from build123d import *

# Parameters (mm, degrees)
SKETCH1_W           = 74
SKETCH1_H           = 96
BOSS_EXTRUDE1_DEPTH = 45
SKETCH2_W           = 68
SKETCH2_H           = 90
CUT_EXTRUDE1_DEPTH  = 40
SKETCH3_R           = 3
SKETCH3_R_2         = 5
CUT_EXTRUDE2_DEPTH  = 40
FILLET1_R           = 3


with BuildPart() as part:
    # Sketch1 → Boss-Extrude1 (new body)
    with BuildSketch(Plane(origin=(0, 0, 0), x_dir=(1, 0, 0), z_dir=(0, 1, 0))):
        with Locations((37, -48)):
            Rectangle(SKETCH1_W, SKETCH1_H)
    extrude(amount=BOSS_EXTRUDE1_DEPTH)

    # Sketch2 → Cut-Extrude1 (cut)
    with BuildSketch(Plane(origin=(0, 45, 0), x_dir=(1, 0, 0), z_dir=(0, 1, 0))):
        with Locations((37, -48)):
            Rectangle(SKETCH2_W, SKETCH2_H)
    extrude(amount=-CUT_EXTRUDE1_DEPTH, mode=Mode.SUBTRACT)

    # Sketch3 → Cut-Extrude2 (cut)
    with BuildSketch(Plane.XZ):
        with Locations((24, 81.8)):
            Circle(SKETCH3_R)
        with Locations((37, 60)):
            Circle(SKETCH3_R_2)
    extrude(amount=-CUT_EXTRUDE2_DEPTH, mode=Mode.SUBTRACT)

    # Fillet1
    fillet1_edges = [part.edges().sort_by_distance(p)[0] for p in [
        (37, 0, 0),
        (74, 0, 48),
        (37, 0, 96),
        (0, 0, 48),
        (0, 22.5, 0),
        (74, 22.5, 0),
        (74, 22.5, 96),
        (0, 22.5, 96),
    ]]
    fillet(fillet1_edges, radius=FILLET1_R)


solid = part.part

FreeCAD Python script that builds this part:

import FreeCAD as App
import Part
import Sketcher
Q = App.Units.Quantity


def edges_at(feature, points):
    """Names of the edges that pass closest to the given points."""
    edges = feature.Shape.Edges
    near = lambda p: min(range(len(edges)), key=lambda i: edges[i].distToShape(Part.Vertex(*p))[0])
    return sorted({f"Edge{near(p) + 1}" for p in points})


def add_polygon(sketch, points):
    """Adds a closed chain of lines whose ends are joined by coincident constraints."""
    first, n = sketch.GeometryCount, len(points)
    for a, b in zip(points, points[1:] + points[:1]):
        sketch.addGeometry(Part.LineSegment(App.Vector(*a, 0), App.Vector(*b, 0)), False)
    for i in range(n):
        sketch.addConstraint(Sketcher.Constraint("Coincident", first + i, 2, first + (i + 1) % n, 1))

doc = App.newDocument("Part")
body = doc.addObject("PartDesign::Body", "Body")

# Sketch on XZ plane
sketch1 = body.newObject("Sketcher::SketchObject", "Sketch")
sketch1.AttachmentSupport = (doc.getObject("XZ_Plane"), [""])
sketch1.MapMode = "FlatFace"
add_polygon(sketch1, [(0, 0), (0, 96), (74, 96), (74, 0)])  # lines 0-3
sketch1.addConstraint([
    Sketcher.Constraint("Vertical", 0),
    Sketcher.Constraint("Horizontal", 1),
    Sketcher.Constraint("Vertical", 2),
    Sketcher.Constraint("Horizontal", 3),
    Sketcher.Constraint("Coincident", 3, 2, -1, 1),
    Sketcher.Constraint("DistanceX", 1, 1, 1, 2, Q("74 mm")),
    Sketcher.Constraint("DistanceY", 0, 1, 0, 2, Q("96 mm")),
])
pad1 = body.newObject("PartDesign::Pad", "Pad")
pad1.Profile = sketch1
pad1.Length = 45
pad1.Reversed = True

# Sketch on XZ plane
sketch2 = body.newObject("Sketcher::SketchObject", "Sketch001")
sketch2.AttachmentSupport = (doc.getObject("XZ_Plane"), [""])
sketch2.MapMode = "FlatFace"
sketch2.AttachmentOffset = App.Placement(App.Vector(0, 0, -45), App.Rotation())
add_polygon(sketch2, [(3, 3), (3, 93), (71, 93), (71, 3)])  # lines 0-3
sketch2.addConstraint([
    Sketcher.Constraint("Vertical", 0),
    Sketcher.Constraint("Horizontal", 1),
    Sketcher.Constraint("Vertical", 2),
    Sketcher.Constraint("Horizontal", 3),
    Sketcher.Constraint("DistanceX", 1, 1, 1, 2, Q("68 mm")),
    Sketcher.Constraint("DistanceY", 0, 1, 0, 2, Q("90 mm")),
    Sketcher.Constraint("DistanceX", -1, 1, 0, 2, Q("3 mm")),
    Sketcher.Constraint("DistanceY", -1, 1, 0, 2, Q("93 mm")),
])
pocket1 = body.newObject("PartDesign::Pocket", "Pocket")
pocket1.Profile = sketch2
pocket1.Length = 40
pocket1.Reversed = True

# Sketch on XZ plane
sketch3 = body.newObject("Sketcher::SketchObject", "Sketch002")
sketch3.AttachmentSupport = (doc.getObject("XZ_Plane"), [""])
sketch3.MapMode = "FlatFace"
sketch3.addGeometry([
    Part.Circle(App.Vector(24, 81.8, 0), App.Vector(0, 0, 1), 3),
    Part.Circle(App.Vector(37, 60, 0), App.Vector(0, 0, 1), 5),
], False)
sketch3.addConstraint([
    Sketcher.Constraint("Diameter", 0, Q("6 mm")),
    Sketcher.Constraint("Diameter", 1, Q("10 mm")),
    Sketcher.Constraint("DistanceX", -1, 1, 0, 3, Q("24 mm")),
    Sketcher.Constraint("DistanceX", -1, 1, 1, 3, Q("37 mm")),
    Sketcher.Constraint("DistanceY", -1, 1, 1, 3, Q("60 mm")),
    Sketcher.Constraint("DistanceY", -1, 1, 0, 3, Q("81.8 mm")),
])
pocket2 = body.newObject("PartDesign::Pocket", "Pocket001")
pocket2.Profile = sketch3
pocket2.Length = 40
doc.recompute()

fillet = body.newObject("PartDesign::Fillet", "Fillet")
fillet.Base = (pocket2, edges_at(pocket2, [
    (37, 0, 0),
    (74, 0, 48),
    (37, 0, 96),
    (0, 0, 48),
    (0, 22.5, 0),
    (74, 22.5, 0),
    (74, 22.5, 96),
    (0, 22.5, 96),
]))
fillet.Radius = 3

doc.recompute()
